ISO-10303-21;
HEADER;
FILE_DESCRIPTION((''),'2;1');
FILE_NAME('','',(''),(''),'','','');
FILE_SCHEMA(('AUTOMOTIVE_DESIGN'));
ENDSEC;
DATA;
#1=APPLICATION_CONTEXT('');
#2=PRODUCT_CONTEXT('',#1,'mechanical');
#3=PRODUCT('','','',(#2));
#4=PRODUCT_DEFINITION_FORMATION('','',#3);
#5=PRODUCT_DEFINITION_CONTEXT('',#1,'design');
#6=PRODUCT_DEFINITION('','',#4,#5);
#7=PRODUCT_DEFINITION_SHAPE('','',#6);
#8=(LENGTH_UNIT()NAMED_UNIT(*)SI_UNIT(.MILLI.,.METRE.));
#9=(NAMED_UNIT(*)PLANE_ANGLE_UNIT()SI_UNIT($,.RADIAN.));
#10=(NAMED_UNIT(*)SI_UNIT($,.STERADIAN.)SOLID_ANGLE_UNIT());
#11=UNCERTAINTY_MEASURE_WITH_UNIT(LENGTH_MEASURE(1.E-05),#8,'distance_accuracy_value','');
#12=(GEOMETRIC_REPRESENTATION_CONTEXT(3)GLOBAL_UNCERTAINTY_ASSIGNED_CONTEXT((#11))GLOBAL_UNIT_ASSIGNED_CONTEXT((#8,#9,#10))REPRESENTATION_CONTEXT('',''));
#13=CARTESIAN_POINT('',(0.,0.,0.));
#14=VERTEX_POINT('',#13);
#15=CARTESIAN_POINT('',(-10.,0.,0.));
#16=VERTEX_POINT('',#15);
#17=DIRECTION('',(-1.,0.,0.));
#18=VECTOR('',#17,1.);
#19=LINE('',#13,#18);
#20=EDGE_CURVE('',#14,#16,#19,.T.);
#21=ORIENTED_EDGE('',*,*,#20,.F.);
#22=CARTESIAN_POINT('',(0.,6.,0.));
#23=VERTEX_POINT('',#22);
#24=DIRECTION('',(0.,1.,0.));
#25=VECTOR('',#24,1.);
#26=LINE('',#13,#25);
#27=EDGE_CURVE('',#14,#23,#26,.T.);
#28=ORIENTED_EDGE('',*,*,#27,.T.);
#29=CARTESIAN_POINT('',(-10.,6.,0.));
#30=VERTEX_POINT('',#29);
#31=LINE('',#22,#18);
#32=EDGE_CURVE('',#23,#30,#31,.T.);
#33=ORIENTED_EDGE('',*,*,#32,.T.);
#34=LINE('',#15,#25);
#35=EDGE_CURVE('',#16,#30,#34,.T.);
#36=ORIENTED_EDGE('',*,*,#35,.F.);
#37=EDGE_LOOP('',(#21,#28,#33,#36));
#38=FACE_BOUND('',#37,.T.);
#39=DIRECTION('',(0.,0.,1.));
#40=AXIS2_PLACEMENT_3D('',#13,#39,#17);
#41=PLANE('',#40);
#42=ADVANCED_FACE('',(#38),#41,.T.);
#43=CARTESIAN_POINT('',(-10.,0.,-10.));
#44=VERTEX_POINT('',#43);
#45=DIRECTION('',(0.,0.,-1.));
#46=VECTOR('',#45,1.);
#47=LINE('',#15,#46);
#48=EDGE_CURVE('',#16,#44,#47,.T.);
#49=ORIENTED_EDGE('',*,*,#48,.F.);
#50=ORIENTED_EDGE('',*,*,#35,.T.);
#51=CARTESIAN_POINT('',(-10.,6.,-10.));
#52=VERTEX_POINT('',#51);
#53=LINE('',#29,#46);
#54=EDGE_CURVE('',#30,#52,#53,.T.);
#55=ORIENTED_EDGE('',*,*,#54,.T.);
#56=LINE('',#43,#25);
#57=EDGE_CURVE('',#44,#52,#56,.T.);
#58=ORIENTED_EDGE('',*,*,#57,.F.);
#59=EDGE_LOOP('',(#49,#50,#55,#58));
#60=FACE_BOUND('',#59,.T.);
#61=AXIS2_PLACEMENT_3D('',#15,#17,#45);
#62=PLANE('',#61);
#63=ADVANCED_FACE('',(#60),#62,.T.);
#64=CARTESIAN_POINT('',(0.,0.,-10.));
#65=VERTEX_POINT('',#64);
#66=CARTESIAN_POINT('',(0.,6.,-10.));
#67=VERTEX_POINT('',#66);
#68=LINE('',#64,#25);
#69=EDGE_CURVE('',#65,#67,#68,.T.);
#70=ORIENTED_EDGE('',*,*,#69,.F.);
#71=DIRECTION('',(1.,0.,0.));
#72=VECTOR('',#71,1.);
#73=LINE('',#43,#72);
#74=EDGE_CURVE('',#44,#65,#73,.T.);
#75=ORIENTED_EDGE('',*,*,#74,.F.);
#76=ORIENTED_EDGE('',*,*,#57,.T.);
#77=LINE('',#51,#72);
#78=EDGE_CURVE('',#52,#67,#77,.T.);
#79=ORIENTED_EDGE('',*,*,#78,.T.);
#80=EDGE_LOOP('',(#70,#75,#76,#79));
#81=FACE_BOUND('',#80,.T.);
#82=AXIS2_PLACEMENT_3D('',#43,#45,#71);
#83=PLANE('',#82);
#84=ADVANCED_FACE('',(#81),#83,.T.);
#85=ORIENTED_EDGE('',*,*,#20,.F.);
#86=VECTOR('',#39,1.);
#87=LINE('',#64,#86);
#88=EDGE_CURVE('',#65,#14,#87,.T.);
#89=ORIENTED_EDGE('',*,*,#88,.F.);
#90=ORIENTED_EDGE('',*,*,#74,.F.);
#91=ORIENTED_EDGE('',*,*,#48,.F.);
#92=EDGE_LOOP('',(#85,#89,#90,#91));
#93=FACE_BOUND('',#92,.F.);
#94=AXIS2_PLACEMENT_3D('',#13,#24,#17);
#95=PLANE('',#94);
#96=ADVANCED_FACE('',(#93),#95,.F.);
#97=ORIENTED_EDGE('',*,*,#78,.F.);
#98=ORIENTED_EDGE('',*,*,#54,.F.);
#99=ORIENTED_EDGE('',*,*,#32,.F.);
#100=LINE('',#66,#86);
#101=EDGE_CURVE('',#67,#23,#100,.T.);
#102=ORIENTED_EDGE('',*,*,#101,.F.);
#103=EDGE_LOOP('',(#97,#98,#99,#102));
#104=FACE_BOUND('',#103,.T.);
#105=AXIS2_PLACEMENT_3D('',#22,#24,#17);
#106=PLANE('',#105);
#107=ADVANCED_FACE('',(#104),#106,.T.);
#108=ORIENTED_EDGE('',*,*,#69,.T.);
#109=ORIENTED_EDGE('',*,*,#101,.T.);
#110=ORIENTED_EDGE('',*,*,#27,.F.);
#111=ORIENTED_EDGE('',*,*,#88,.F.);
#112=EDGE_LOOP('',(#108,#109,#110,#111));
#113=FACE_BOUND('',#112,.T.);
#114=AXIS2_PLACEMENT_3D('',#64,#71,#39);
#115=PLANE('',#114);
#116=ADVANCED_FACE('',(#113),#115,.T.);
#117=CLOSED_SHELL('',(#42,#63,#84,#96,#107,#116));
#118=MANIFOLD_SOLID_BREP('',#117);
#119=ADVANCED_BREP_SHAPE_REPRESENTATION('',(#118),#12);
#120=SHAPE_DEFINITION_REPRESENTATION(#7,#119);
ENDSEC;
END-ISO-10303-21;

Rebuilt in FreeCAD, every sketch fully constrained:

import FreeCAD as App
import Part
import Sketcher
from FreeCAD import Vector
Q = App.Units.Quantity


def add_polygon(sketch, points):
    """Adds a closed chain of lines whose ends are joined by coincident constraints."""
    first, n = sketch.GeometryCount, len(points)
    for a, b in zip(points, points[1:] + points[:1]):
        sketch.addGeometry(Part.LineSegment(App.Vector(*a, 0), App.Vector(*b, 0)), False)
    for i in range(n):
        sketch.addConstraint(Sketcher.Constraint("Coincident", first + i, 2, first + (i + 1) % n, 1))

doc = App.newDocument("Part")
body = doc.addObject("PartDesign::Body", "Body")

# Sketch on XZ plane
sketch1 = body.newObject("Sketcher::SketchObject", "Sketch")
sketch1.AttachmentSupport = (doc.getObject("XZ_Plane"), [""])
sketch1.MapMode = "FlatFace"
add_polygon(sketch1, [(-10, 0), (0, 0), (0, -10), (-10, -10)])  # lines 0-3
sketch1.addConstraint([
    Sketcher.Constraint("Horizontal", 0),
    Sketcher.Constraint("Vertical", 1),
    Sketcher.Constraint("Horizontal", 2),
    Sketcher.Constraint("Vertical", 3),
    Sketcher.Constraint("Coincident", 0, 2, -1, 1),
    Sketcher.Constraint("Equal", 2, 1),
    Sketcher.Constraint("DistanceX", 0, 1, 0, 2, Q("10 mm")),
])
pad1 = body.newObject("PartDesign::Pad", "Pad")
pad1.Profile = sketch1
pad1.Length = 6
pad1.Reversed = True

doc.recompute()
